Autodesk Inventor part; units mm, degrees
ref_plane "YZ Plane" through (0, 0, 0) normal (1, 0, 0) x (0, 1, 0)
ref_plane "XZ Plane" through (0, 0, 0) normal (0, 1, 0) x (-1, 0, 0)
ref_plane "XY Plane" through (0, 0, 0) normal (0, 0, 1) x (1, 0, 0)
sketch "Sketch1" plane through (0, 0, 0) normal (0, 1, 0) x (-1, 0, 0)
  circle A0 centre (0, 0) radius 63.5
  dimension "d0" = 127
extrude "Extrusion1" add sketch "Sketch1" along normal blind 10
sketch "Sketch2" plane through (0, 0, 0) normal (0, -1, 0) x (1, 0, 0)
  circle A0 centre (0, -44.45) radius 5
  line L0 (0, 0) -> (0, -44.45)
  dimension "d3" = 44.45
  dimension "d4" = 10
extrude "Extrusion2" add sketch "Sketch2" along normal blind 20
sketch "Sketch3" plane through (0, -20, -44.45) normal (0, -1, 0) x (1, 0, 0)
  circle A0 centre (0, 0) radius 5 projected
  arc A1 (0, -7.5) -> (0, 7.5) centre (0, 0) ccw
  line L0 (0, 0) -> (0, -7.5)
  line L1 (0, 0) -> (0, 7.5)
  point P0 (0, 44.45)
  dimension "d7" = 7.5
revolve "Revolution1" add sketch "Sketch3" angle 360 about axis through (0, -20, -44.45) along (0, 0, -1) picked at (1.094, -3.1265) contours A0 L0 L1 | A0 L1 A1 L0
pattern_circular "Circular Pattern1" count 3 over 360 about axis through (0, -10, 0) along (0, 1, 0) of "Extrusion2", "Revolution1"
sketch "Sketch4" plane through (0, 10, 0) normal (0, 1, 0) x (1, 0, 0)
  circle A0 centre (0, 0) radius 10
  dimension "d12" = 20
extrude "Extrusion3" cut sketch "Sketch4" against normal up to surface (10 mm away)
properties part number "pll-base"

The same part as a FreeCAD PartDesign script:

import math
import FreeCAD as App
import Part
import Sketcher
from FreeCAD import Vector

doc = App.newDocument("Part")
body = doc.addObject("PartDesign::Body", "Body")

# Sketch on XZ plane
sketch1 = body.newObject("Sketcher::SketchObject", "Sketch")
sketch1.AttachmentSupport = (doc.getObject("XZ_Plane"), [""])
sketch1.MapMode = "FlatFace"
sketch1.addGeometry(Part.Circle(Vector(0, 0, 0), Vector(0, 0, 1), 64), False)
sketch1.addConstraint([
    Sketcher.Constraint("Coincident", 0, 3, -1, 1),
    Sketcher.Constraint("Diameter", 0, 127.0),
])
pad1 = body.newObject("PartDesign::Pad", "Pad")
pad1.Profile = sketch1
pad1.Length = 10
pad1.Reversed = True

# Sketch on XZ plane
sketch2 = body.newObject("Sketcher::SketchObject", "Sketch001")
sketch2.AttachmentSupport = (doc.getObject("XZ_Plane"), [""])
sketch2.MapMode = "FlatFace"
sketch2.addGeometry(Part.Circle(Vector(0, -44, 0), Vector(0, 0, 1), 5), False)
sketch2.addConstraint([
    Sketcher.Constraint("PointOnObject", 0, 3, -2),
    Sketcher.Constraint("Diameter", 0, 10.0),
    Sketcher.Constraint("DistanceY", 0, 3, -1, 1, 44.45),
])
pad2 = body.newObject("PartDesign::Pad", "Pad001")
pad2.Profile = sketch2
pad2.Length = 20

# Sketch on XZ plane
sketch3 = body.newObject("Sketcher::SketchObject", "Sketch002")
sketch3.AttachmentSupport = (doc.getObject("XZ_Plane"), [""])
sketch3.MapMode = "FlatFace"
sketch3.AttachmentOffset = App.Placement(Vector(0, 0, 20), App.Rotation())
sketch3.addGeometry([
    Part.ArcOfCircle(Part.Circle(Vector(0, -44, 0), Vector(0, 0, 1), 8), math.radians(-90), math.radians(90)),
    Part.LineSegment(Vector(0, -37, 0), Vector(0, -52, 0)),
], False)
sketch3.addConstraint([
    Sketcher.Constraint("Coincident", 0, 1, 1, 2),
    Sketcher.Constraint("Coincident", 1, 1, 0, 2),
    Sketcher.Constraint("Vertical", 1),
    Sketcher.Constraint("PointOnObject", 0, 3, -2),
    Sketcher.Constraint("PointOnObject", 0, 1, -2),
    Sketcher.Constraint("Radius", 0, 7.5),
    Sketcher.Constraint("DistanceY", 0, 3, -1, 1, 44.45),
])
revolution = body.newObject("PartDesign::Revolution", "Revolution")
revolution.Profile = sketch3
revolution.ReferenceAxis = (sketch3, ["V_Axis"])
revolution.Angle = 360
doc.recompute()

polarpattern = body.newObject("PartDesign::PolarPattern", "PolarPattern")
polarpattern.Originals = [pad2, revolution]
polarpattern.Axis = (doc.getObject("Y_Axis"), [""])
polarpattern.Angle = 360
polarpattern.Occurrences = 3
body.Tip = polarpattern

# Sketch on XZ plane
sketch4 = body.newObject("Sketcher::SketchObject", "Sketch003")
sketch4.AttachmentSupport = (doc.getObject("XZ_Plane"), [""])
sketch4.MapMode = "FlatFace"
sketch4.AttachmentOffset = App.Placement(Vector(0, 0, -10), App.Rotation())
sketch4.addGeometry(Part.Circle(Vector(0, 0, 0), Vector(0, 0, 1), 10), False)
sketch4.addConstraint([
    Sketcher.Constraint("Coincident", 0, 3, -1, 1),
    Sketcher.Constraint("Diameter", 0, 20.0),
])
pocket1 = body.newObject("PartDesign::Pocket", "Pocket")
pocket1.Profile = sketch4
pocket1.Length = 10
pocket1.Reversed = True

doc.recompute()
